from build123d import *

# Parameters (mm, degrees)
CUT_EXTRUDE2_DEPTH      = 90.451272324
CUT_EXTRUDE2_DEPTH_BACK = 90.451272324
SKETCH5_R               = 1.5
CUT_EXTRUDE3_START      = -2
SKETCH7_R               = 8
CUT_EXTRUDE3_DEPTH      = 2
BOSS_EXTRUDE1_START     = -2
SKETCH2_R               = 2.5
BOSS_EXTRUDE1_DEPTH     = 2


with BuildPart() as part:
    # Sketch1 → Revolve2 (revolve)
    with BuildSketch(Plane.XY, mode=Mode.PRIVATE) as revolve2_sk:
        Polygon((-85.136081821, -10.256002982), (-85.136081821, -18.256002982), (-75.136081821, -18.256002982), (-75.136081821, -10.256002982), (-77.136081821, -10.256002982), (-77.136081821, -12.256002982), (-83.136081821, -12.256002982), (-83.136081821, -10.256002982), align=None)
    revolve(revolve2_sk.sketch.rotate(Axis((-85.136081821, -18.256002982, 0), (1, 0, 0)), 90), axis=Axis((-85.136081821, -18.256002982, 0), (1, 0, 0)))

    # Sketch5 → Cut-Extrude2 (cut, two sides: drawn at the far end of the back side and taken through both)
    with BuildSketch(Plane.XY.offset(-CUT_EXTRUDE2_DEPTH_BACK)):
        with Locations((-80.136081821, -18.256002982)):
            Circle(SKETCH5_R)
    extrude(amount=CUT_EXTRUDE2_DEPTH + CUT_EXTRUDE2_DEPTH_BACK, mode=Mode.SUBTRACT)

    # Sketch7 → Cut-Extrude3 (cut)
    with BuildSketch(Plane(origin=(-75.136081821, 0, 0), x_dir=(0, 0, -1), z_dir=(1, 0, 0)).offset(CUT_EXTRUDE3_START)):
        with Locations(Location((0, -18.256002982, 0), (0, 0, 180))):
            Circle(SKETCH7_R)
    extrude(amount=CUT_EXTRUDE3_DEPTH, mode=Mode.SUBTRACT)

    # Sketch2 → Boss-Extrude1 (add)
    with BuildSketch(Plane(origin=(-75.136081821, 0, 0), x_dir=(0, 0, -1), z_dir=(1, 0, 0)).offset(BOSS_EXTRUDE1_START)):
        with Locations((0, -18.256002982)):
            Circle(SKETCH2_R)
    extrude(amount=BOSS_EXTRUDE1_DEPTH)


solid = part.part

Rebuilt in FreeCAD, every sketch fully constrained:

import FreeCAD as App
import Part
import Sketcher
from FreeCAD import Vector
Q = App.Units.Quantity

doc = App.newDocument("Part")
params = doc.addObject("Spreadsheet::Sheet", "Params")
for row, (alias, value) in enumerate([
    ("sketch1_width", "10 mm"),
    ("sketch1_width2", "2 mm"),
    ("sketch1_height", "8 mm"),
    ("revolution_angle", "360 deg"),
    ("sketch2_diameter", "3 mm"),
    ("sketch3_diameter", "16 mm"),
    ("pocket2_length", "2 mm"),
    ("sketch4_diameter", "5 mm"),
    ("pad1_length", "2 mm"),
], start=1):
    params.set(f"A{row}", alias)
    params.set(f"B{row}", "=" + value)
    params.setAlias(f"B{row}", alias)

body = doc.addObject("PartDesign::Body", "Body")

sketch1 = body.newObject("Sketcher::SketchObject", "Sketch")
sketch1.AttachmentSupport = (doc.getObject("XY_Plane"), [""])
sketch1.MapMode = "FlatFace"
sketch1.addGeometry(Part.LineSegment(Vector(-85.1, -10.3, 0), Vector(-85.1, -18.3, 0)), False)
sketch1.addGeometry(Part.LineSegment(Vector(-85.1, -18.3, 0), Vector(-75.1, -18.3, 0)), False)
sketch1.addGeometry(Part.LineSegment(Vector(-75.1, -18.3, 0), Vector(-75.1, -10.3, 0)), False)
sketch1.addGeometry(Part.LineSegment(Vector(-75.1, -10.3, 0), Vector(-77.1, -10.3, 0)), False)
sketch1.addGeometry(Part.LineSegment(Vector(-77.1, -10.3, 0), Vector(-77.1, -12.3, 0)), False)
sketch1.addGeometry(Part.LineSegment(Vector(-77.1, -12.3, 0), Vector(-83.1, -12.3, 0)), False)
sketch1.addGeometry(Part.LineSegment(Vector(-83.1, -12.3, 0), Vector(-83.1, -10.3, 0)), False)
sketch1.addGeometry(Part.LineSegment(Vector(-83.1, -10.3, 0), Vector(-85.1, -10.3, 0)), False)
sketch1.addGeometry(Part.LineSegment(Vector(-85.1, -18.3, 0), Vector(-75.1, -18.3, 0)), True)
sketch1.addConstraint(Sketcher.Constraint("Coincident", 0, 2, 1, 1))
sketch1.addConstraint(Sketcher.Constraint("Coincident", 1, 2, 2, 1))
sketch1.addConstraint(Sketcher.Constraint("Coincident", 2, 2, 3, 1))
sketch1.addConstraint(Sketcher.Constraint("Coincident", 3, 2, 4, 1))
sketch1.addConstraint(Sketcher.Constraint("Coincident", 4, 2, 5, 1))
sketch1.addConstraint(Sketcher.Constraint("Coincident", 5, 2, 6, 1))
sketch1.addConstraint(Sketcher.Constraint("Coincident", 6, 2, 7, 1))
sketch1.addConstraint(Sketcher.Constraint("Coincident", 7, 2, 0, 1))
sketch1.addConstraint(Sketcher.Constraint("Vertical", 0))
sketch1.addConstraint(Sketcher.Constraint("Horizontal", 1))
sketch1.addConstraint(Sketcher.Constraint("Vertical", 2))
sketch1.addConstraint(Sketcher.Constraint("Horizontal", 3))
sketch1.addConstraint(Sketcher.Constraint("Vertical", 4))
sketch1.addConstraint(Sketcher.Constraint("Horizontal", 5))
sketch1.addConstraint(Sketcher.Constraint("Vertical", 6))
sketch1.addConstraint(Sketcher.Constraint("Horizontal", 7))
sketch1.addConstraint(Sketcher.Constraint("Horizontal", 8))
sketch1.addConstraint(Sketcher.Constraint("Coincident", 8, 1, 0, 2))
sketch1.addConstraint(Sketcher.Constraint("Horizontal", 3, 2, 6, 2))
sketch1.addConstraint(Sketcher.Constraint("Vertical", 2, 2, 8, 2))
sketch1.addConstraint(Sketcher.Constraint("Equal", 3, 7))
sketch1.addConstraint(Sketcher.Constraint("Equal", 7, 4))
sketch1.addConstraint(Sketcher.Constraint("DistanceX", 1, 1, 1, 2, Q("10 mm")))
sketch1.addConstraint(Sketcher.Constraint("DistanceX", 3, 2, 3, 1, Q("2 mm")))
sketch1.addConstraint(Sketcher.Constraint("DistanceY", 0, 2, 0, 1, Q("8 mm")))
sketch1.addConstraint(Sketcher.Constraint("DistanceX", 0, 2, -1, 1, Q("85.136082 mm")))
sketch1.addConstraint(Sketcher.Constraint("DistanceY", 0, 2, -1, 1, Q("18.256003 mm")))
sketch1.setExpression("Constraints[22]", "Params.sketch1_width")
sketch1.setExpression("Constraints[23]", "Params.sketch1_width2")
sketch1.setExpression("Constraints[24]", "Params.sketch1_height")
revolution = body.newObject("PartDesign::Revolution", "Revolution")
revolution.Profile = sketch1
revolution.ReferenceAxis = (sketch1, ["Axis0"])
revolution.setExpression("Angle", "Params.revolution_angle")

sketch2 = body.newObject("Sketcher::SketchObject", "Sketch001")
sketch2.AttachmentSupport = (doc.getObject("XY_Plane"), [""])
sketch2.MapMode = "FlatFace"
sketch2.addGeometry(Part.Circle(Vector(-80.1, -18.3, 0), Vector(0, 0, 1), 1.5), False)
sketch2.addConstraint(Sketcher.Constraint("Diameter", 0, Q("3 mm")))
sketch2.addConstraint(Sketcher.Constraint("DistanceX", 0, 3, -1, 1, Q("80.136082 mm")))
sketch2.addConstraint(Sketcher.Constraint("DistanceY", 0, 3, -1, 1, Q("18.256003 mm")))
sketch2.setExpression("Constraints[0]", "Params.sketch2_diameter")
pocket1 = body.newObject("PartDesign::Pocket", "Pocket")
pocket1.Profile = sketch2
pocket1.Type = "ThroughAll"
pocket1.Midplane = True

sketch3 = body.newObject("Sketcher::SketchObject", "Sketch002")
sketch3.AttachmentSupport = (doc.getObject("YZ_Plane"), [""])
sketch3.MapMode = "FlatFace"
sketch3.AttachmentOffset = App.Placement(Vector(0, 0, -77.136082), App.Rotation())
sketch3.addGeometry(Part.Circle(Vector(-18, 0, 0), Vector(0, 0, 1), 8), False)
sketch3.addConstraint(Sketcher.Constraint("PointOnObject", 0, 3, -1))
sketch3.addConstraint(Sketcher.Constraint("Diameter", 0, Q("16 mm")))
sketch3.addConstraint(Sketcher.Constraint("DistanceX", 0, 3, -1, 1, Q("18.256003 mm")))
sketch3.setExpression("Constraints[1]", "Params.sketch3_diameter")
pocket2 = body.newObject("PartDesign::Pocket", "Pocket001")
pocket2.Profile = sketch3
pocket2.setExpression("Length", "Params.pocket2_length")
pocket2.Reversed = True

sketch4 = body.newObject("Sketcher::SketchObject", "Sketch003")
sketch4.AttachmentSupport = (doc.getObject("YZ_Plane"), [""])
sketch4.MapMode = "FlatFace"
sketch4.AttachmentOffset = App.Placement(Vector(0, 0, -77.136082), App.Rotation())
sketch4.addGeometry(Part.Circle(Vector(-18.3, 0, 0), Vector(0, 0, 1), 2.5), False)
sketch4.addConstraint(Sketcher.Constraint("PointOnObject", 0, 3, -1))
sketch4.addConstraint(Sketcher.Constraint("Diameter", 0, Q("5 mm")))
sketch4.addConstraint(Sketcher.Constraint("DistanceX", 0, 3, -1, 1, Q("18.256003 mm")))
sketch4.setExpression("Constraints[1]", "Params.sketch4_diameter")
pad1 = body.newObject("PartDesign::Pad", "Pad")
pad1.Profile = sketch4
pad1.setExpression("Length", "Params.pad1_length")

doc.recompute()
